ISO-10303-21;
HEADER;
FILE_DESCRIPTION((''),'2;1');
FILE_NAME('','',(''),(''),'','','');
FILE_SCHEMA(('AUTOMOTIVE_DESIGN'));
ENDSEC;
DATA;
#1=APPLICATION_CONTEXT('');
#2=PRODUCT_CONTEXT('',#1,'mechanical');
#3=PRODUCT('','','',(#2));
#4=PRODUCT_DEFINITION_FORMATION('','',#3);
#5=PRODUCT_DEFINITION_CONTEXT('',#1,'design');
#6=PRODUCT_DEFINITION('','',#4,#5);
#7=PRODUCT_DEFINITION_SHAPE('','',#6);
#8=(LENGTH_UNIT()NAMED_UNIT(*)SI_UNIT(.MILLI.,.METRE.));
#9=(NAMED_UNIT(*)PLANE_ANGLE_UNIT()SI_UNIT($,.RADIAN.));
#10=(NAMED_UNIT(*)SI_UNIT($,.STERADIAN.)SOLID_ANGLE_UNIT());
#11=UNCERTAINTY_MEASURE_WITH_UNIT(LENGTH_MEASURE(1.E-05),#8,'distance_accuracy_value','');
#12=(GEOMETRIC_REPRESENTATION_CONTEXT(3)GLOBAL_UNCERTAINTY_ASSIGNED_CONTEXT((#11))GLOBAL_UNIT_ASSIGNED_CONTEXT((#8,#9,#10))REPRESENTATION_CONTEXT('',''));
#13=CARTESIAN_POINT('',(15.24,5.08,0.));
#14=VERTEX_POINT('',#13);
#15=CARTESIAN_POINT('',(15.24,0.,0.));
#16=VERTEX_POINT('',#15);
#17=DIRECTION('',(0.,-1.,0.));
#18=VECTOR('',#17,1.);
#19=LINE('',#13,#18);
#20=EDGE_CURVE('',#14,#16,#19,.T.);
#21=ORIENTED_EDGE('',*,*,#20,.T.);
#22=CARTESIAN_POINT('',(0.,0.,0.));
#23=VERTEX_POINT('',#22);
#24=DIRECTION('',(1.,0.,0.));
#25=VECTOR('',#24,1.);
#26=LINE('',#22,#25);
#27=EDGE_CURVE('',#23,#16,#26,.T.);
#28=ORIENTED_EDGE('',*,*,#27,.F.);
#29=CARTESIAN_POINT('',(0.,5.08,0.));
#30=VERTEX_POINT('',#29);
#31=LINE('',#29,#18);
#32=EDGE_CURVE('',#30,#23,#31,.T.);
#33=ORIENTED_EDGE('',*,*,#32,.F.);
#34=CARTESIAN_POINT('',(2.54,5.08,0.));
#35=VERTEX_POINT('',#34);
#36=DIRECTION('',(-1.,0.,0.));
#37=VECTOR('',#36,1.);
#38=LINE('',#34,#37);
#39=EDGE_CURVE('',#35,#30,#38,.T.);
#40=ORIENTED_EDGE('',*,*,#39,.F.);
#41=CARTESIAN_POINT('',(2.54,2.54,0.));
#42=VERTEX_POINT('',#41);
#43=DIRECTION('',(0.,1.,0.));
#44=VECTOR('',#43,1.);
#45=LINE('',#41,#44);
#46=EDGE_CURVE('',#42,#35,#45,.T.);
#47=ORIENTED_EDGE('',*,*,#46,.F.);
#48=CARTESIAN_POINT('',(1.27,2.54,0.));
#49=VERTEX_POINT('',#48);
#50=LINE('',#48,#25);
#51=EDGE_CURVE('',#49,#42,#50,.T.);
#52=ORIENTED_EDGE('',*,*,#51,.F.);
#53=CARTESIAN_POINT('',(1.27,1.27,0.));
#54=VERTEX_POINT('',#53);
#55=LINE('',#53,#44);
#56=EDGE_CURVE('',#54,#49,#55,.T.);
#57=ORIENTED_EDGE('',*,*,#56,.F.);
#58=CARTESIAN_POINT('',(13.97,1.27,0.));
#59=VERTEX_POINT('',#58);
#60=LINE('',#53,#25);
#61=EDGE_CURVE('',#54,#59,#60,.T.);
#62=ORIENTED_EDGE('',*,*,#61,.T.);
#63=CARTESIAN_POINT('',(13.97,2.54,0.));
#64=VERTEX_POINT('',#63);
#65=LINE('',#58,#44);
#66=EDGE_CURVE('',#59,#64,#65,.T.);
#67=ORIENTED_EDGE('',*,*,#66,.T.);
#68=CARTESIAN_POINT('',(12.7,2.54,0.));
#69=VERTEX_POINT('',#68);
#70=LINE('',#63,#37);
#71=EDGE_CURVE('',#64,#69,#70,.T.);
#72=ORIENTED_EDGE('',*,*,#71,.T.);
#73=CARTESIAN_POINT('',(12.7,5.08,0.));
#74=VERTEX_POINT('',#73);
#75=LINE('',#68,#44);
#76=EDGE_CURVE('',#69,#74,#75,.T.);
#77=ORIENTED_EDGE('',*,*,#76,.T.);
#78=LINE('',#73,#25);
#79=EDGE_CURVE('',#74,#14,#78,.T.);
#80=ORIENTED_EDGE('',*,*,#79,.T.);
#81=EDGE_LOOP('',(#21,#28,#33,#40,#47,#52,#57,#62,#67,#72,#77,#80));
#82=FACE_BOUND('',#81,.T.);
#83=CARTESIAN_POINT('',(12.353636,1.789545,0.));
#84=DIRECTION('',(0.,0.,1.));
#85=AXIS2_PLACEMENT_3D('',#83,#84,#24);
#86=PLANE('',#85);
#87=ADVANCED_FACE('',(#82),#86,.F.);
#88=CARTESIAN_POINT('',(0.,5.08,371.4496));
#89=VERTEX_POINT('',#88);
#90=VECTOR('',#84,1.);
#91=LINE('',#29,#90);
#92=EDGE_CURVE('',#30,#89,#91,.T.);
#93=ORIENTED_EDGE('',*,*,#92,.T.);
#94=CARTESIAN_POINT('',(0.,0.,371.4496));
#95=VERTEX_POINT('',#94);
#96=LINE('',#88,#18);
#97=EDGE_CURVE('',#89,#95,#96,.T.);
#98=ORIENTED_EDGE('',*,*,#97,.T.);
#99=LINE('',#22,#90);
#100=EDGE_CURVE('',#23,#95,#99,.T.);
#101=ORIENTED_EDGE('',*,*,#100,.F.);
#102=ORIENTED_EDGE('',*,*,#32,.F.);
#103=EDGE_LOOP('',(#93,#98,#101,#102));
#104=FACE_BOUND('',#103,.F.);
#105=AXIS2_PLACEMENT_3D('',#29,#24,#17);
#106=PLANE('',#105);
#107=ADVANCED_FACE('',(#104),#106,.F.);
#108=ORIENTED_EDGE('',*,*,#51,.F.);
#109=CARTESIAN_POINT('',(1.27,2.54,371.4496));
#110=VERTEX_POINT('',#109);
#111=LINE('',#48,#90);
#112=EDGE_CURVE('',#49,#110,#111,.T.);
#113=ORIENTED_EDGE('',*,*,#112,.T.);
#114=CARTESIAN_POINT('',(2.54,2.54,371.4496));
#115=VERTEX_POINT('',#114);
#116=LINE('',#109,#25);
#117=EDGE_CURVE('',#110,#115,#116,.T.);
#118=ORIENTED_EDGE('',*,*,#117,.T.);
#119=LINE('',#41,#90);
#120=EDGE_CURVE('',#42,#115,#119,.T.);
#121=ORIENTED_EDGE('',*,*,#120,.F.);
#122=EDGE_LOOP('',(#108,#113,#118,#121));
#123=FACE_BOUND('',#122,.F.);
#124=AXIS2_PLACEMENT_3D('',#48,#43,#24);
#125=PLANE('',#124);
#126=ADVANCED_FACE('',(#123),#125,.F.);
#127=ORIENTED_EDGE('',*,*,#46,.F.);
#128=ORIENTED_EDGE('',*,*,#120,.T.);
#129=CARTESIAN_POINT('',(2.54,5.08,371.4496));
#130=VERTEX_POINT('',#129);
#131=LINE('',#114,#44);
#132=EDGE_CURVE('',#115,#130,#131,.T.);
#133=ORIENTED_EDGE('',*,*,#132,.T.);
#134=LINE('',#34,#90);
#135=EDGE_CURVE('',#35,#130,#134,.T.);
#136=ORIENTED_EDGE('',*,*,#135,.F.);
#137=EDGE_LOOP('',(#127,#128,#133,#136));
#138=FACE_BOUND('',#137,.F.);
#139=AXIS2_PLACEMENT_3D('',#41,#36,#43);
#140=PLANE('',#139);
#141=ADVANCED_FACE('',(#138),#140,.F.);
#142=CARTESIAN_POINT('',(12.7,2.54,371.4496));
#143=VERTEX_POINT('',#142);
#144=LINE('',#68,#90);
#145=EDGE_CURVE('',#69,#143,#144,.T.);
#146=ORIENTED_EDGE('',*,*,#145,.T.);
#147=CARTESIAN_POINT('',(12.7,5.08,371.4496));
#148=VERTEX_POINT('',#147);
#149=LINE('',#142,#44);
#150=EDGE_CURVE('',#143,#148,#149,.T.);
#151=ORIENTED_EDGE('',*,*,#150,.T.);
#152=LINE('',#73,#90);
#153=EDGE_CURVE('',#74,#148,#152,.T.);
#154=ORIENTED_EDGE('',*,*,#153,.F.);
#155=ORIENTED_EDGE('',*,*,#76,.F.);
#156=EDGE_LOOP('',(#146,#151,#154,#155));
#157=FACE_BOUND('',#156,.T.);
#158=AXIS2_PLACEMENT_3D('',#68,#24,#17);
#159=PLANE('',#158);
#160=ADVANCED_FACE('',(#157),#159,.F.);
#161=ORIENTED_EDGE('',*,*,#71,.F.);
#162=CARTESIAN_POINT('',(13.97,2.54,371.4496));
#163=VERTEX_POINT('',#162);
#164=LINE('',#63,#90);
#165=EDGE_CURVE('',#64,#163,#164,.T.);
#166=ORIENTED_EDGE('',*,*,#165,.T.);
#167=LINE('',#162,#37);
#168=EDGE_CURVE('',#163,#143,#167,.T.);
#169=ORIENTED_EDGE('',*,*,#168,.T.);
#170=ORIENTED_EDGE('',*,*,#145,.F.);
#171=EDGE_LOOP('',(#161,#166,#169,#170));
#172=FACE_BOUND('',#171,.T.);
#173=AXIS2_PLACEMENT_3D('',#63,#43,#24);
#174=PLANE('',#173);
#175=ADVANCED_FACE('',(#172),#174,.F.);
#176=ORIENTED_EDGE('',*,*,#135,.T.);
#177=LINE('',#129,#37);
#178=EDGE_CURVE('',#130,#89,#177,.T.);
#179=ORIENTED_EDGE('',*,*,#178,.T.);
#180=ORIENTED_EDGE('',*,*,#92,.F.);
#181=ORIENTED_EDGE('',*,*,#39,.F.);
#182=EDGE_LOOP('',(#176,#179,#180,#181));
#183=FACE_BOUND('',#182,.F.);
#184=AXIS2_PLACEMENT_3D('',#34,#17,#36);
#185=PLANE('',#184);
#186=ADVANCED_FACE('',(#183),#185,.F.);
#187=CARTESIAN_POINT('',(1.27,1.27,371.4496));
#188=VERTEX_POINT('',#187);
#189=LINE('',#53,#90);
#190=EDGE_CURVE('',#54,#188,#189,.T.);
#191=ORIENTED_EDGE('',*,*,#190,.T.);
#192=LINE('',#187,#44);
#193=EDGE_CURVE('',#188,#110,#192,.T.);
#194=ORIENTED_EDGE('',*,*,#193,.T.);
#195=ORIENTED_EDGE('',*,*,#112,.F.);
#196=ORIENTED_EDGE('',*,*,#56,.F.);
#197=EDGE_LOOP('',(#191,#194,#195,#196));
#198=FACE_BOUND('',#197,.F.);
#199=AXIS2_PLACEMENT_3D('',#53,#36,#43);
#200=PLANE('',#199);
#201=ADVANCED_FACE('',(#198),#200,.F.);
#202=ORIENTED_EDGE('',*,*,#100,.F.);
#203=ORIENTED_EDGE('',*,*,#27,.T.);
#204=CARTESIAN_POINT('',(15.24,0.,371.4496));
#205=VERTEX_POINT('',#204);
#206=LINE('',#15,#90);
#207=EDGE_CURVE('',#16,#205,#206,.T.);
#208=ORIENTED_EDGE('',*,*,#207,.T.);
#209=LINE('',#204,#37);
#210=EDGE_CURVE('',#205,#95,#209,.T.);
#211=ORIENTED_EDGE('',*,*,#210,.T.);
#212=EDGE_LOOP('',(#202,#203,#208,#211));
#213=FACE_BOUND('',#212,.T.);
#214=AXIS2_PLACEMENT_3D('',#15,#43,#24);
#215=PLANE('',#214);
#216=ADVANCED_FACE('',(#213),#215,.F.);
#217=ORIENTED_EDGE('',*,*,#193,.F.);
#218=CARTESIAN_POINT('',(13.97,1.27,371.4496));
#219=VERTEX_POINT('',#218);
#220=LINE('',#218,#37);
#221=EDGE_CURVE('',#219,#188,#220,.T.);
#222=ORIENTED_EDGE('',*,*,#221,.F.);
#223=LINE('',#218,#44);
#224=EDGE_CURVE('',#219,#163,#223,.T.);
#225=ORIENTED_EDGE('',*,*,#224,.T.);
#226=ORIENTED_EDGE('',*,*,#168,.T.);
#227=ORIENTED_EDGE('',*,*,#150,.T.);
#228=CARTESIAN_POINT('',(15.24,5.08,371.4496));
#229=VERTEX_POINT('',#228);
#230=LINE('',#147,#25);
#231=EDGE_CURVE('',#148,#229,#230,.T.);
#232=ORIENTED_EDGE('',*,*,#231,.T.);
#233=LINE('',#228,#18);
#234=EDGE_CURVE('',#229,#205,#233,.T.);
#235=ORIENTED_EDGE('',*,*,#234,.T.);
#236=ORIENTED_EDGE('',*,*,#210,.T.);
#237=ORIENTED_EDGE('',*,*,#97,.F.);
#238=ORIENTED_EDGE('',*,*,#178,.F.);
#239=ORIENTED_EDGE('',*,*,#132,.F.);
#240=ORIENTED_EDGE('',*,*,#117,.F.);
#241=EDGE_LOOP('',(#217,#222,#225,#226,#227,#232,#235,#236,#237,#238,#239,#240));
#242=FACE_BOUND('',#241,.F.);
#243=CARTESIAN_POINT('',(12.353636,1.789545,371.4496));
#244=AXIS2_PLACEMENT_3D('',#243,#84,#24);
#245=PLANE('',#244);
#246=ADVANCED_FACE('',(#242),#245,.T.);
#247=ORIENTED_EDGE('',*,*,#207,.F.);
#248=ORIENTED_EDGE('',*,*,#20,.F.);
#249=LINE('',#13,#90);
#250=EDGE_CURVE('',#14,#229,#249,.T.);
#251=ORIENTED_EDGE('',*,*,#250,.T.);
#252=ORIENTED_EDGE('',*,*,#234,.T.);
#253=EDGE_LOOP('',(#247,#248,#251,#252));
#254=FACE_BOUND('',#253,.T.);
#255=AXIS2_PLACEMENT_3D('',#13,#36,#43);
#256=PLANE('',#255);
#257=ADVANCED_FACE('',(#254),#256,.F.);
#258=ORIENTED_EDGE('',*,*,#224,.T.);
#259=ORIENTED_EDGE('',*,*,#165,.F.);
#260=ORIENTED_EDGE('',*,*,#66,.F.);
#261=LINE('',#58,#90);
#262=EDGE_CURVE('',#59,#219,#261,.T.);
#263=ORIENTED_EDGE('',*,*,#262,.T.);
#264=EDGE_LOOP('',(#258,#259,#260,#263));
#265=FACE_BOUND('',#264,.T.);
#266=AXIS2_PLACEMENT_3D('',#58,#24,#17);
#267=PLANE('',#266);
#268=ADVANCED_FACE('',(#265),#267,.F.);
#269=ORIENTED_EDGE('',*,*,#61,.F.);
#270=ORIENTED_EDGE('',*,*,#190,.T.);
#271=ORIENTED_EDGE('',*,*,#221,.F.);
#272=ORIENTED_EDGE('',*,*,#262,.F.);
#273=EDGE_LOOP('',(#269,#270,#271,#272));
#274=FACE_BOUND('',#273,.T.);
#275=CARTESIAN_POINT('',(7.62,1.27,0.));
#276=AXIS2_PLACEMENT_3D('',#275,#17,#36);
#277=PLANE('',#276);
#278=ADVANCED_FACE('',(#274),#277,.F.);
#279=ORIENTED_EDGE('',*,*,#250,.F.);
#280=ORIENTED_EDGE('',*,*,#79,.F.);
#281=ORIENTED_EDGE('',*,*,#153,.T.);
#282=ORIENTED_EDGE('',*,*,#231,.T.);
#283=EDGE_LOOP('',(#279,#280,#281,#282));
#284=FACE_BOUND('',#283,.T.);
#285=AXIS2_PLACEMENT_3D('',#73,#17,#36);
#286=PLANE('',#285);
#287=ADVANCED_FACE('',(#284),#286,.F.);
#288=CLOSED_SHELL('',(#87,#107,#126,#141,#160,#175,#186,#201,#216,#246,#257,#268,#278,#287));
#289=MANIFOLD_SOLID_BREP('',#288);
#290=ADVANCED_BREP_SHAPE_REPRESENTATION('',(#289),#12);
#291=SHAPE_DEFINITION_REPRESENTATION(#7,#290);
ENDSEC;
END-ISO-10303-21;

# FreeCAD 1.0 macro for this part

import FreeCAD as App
import Part
import Sketcher
Q = App.Units.Quantity


def add_polygon(sketch, points):
    """Adds a closed chain of lines whose ends are joined by coincident constraints."""
    first, n = sketch.GeometryCount, len(points)
    for a, b in zip(points, points[1:] + points[:1]):
        sketch.addGeometry(Part.LineSegment(App.Vector(*a, 0), App.Vector(*b, 0)), False)
    for i in range(n):
        sketch.addConstraint(Sketcher.Constraint("Coincident", first + i, 2, first + (i + 1) % n, 1))

doc = App.newDocument("Part")
params = doc.addObject("Spreadsheet::Sheet", "Params")
for row, (alias, value) in enumerate([
    ("sketch1_width", "0.3 in"),
    ("sketch1_width2", "0.1 in"),
    ("sketch1_height", "0.2 in"),
    ("pad1_length", "14.624 in"),
], start=1):
    params.set(f"A{row}", alias)
    params.set(f"B{row}", "=" + value)
    params.setAlias(f"B{row}", alias)

body = doc.addObject("PartDesign::Body", "Body")

# Sketch on XY plane
sketch1 = body.newObject("Sketcher::SketchObject", "Sketch")
sketch1.AttachmentSupport = (doc.getObject("XY_Plane"), [""])
sketch1.MapMode = "FlatFace"
add_polygon(sketch1, [(0, 5.1), (0, 0), (7.6, 0), (7.6, 1.3), (1.3, 1.3), (1.3, 2.5), (2.5, 2.5), (2.5, 5.1)])  # lines 0-7
sketch1.addConstraint(Sketcher.Constraint("Vertical", 0))
sketch1.addConstraint(Sketcher.Constraint("Horizontal", 1))
sketch1.addConstraint(Sketcher.Constraint("Vertical", 2))
sketch1.addConstraint(Sketcher.Constraint("Horizontal", 3))
sketch1.addConstraint(Sketcher.Constraint("Vertical", 4))
sketch1.addConstraint(Sketcher.Constraint("Horizontal", 5))
sketch1.addConstraint(Sketcher.Constraint("Vertical", 6))
sketch1.addConstraint(Sketcher.Constraint("Horizontal", 7))
sketch1.addConstraint(Sketcher.Constraint("Coincident", 0, 2, -1, 1))
sketch1.addConstraint(Sketcher.Constraint("Equal", 5, 2))
sketch1.addConstraint(Sketcher.Constraint("Equal", 2, 4))
sketch1.addConstraint(Sketcher.Constraint("Equal", 7, 6))
sketch1.addConstraint(Sketcher.Constraint("DistanceX", 1, 1, 1, 2, Q("0.3 in")))
sketch1.addConstraint(Sketcher.Constraint("DistanceX", 7, 2, 7, 1, Q("0.1 in")))
sketch1.addConstraint(Sketcher.Constraint("DistanceY", 0, 2, 0, 1, Q("0.2 in")))
sketch1.setExpression("Constraints[20]", "Params.sketch1_width")
sketch1.setExpression("Constraints[21]", "Params.sketch1_width2")
sketch1.setExpression("Constraints[22]", "Params.sketch1_height")
pad1 = body.newObject("PartDesign::Pad", "Pad")
pad1.Profile = sketch1
pad1.setExpression("Length", "Params.pad1_length")
body2 = doc.addObject("PartDesign::Body", "Body001")
doc.recompute()

body2.BaseFeature = body
doc.recompute()

mirroring = doc.addObject("Part::Mirroring", "Mirroring")
mirroring.Source = body
mirroring.Base = App.Vector(7.62, 0.635, 185.7248)
mirroring.Normal = App.Vector(1, 0, 0)
body3 = doc.addObject("PartDesign::Body", "Body002")
body3.BaseFeature = mirroring
boolean = body2.newObject("PartDesign::Boolean", "Boolean")
boolean.Type = "Fuse"
boolean.addObjects([body3])
doc.recompute()
mirroring.Visibility = False

doc.recompute()
